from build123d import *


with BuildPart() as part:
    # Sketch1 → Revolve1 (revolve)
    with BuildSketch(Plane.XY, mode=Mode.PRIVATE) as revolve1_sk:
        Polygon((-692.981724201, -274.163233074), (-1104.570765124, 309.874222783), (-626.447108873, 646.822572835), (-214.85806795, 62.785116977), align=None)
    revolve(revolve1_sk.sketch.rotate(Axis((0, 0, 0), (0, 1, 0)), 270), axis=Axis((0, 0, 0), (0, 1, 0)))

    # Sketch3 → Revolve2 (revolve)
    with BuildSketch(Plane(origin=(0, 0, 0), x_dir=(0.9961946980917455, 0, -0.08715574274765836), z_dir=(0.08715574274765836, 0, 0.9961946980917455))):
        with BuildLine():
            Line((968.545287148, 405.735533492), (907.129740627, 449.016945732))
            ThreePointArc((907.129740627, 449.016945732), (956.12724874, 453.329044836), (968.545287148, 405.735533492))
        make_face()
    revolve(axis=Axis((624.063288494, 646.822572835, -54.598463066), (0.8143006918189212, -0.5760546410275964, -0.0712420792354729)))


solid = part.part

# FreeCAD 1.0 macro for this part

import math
import FreeCAD as App
import Part
import Sketcher

V = App.Vector
Q = App.Units.Quantity

doc = App.newDocument("Part")
body = doc.addObject("PartDesign::Body", "Body")

# Sketch on XY plane
sketch1 = doc.addObject("Sketcher::SketchObject", "Sketch")
body.addObject(sketch1)
sketch1.AttachmentSupport = (doc.XY_Plane, [""])
sketch1.MapMode = "FlatFace"
sketch1.addGeometry(Part.LineSegment(V(-1105, 310, 0), V(-693, -274, 0)), False)
sketch1.addGeometry(Part.LineSegment(V(-693, -274, 0), V(-215, 63, 0)), False)
sketch1.addGeometry(Part.LineSegment(V(-215, 63, 0), V(-626, 647, 0)), False)
sketch1.addGeometry(Part.LineSegment(V(-626, 647, 0), V(-1105, 310, 0)), False)
sketch1.addConstraint(Sketcher.Constraint("Coincident", 0, 2, 1, 1))
sketch1.addConstraint(Sketcher.Constraint("Coincident", 1, 2, 2, 1))
sketch1.addConstraint(Sketcher.Constraint("Coincident", 2, 2, 3, 1))
sketch1.addConstraint(Sketcher.Constraint("Coincident", 3, 2, 0, 1))
sketch1.addConstraint(Sketcher.Constraint("Perpendicular", 0, 1))
sketch1.addConstraint(Sketcher.Constraint("Perpendicular", 1, 2))
sketch1.addConstraint(Sketcher.Constraint("Perpendicular", 2, 3))
sketch1.addConstraint(Sketcher.Constraint("DistanceX", 2, 2, -1, 1, Q("626.447109 mm")))
sketch1.addConstraint(Sketcher.Constraint("DistanceY", 0, 2, 1, 2, Q("336.94835 mm")))
sketch1.addConstraint(Sketcher.Constraint("DistanceX", 2, 2, 1, 2, Q("411.589041 mm")))
sketch1.addConstraint(Sketcher.Constraint("Distance", 0, Q("714.496528 mm")))
sketch1.addConstraint(Sketcher.Constraint("DistanceY", 0, 2, -1, 1, Q("274.163233 mm")))
revolution = doc.addObject("PartDesign::Revolution", "Revolution")
body.addObject(revolution)
revolution.Profile = sketch1
revolution.ReferenceAxis = (sketch1, ["V_Axis"])
revolution.Angle = 360

# Sketch on an angled plane
sketch2 = doc.addObject("Sketcher::SketchObject", "Sketch001")
body.addObject(sketch2)
sketch2.Placement = App.Placement(V(0, 0, 0), App.Rotation(V(0.996194698, 0, -0.087155743), V(0, 1, 0), V(0.087155743, 0, 0.996194698), "ZXY"))
sketch2.addGeometry(Part.LineSegment(V(907, 449, 0), V(969, 406, 0)), False)
sketch2.addGeometry(Part.ArcOfCircle(Part.Circle(V(934, 422, 0), V(0, 0, 1), 38), math.radians(-26), math.radians(135)), False)
sketch2.addGeometry(Part.LineSegment(V(907, 449, 0), V(969, 406, 0)), True)  # axis
sketch2.addConstraint(Sketcher.Constraint("Coincident", 0, 1, 1, 2))
sketch2.addConstraint(Sketcher.Constraint("Coincident", 1, 1, 0, 2))
sketch2.addConstraint(Sketcher.Constraint("Coincident", 2, 1, 0, 1))
sketch2.addConstraint(Sketcher.Constraint("Coincident", 2, 2, 1, 1))
sketch2.addConstraint(Sketcher.Constraint("Radius", 1, Q("1.5 in")))
sketch2.addConstraint(Sketcher.Constraint("DistanceY", -1, 1, 1, 3, Q("422.185678 mm")))
sketch2.addConstraint(Sketcher.Constraint("DistanceX", -1, 1, 0, 1, Q("907.129741 mm")))
sketch2.addConstraint(Sketcher.Constraint("DistanceX", 1, 3, 1, 1, Q("34.36572 mm")))
sketch2.addConstraint(Sketcher.Constraint("Distance", 0, Q("75.134213 mm")))
revolution2 = doc.addObject("PartDesign::Revolution", "Revolution001")
body.addObject(revolution2)
revolution2.Profile = sketch2
revolution2.ReferenceAxis = (sketch2, ["Axis0"])
revolution2.Angle = 360

doc.recompute()
